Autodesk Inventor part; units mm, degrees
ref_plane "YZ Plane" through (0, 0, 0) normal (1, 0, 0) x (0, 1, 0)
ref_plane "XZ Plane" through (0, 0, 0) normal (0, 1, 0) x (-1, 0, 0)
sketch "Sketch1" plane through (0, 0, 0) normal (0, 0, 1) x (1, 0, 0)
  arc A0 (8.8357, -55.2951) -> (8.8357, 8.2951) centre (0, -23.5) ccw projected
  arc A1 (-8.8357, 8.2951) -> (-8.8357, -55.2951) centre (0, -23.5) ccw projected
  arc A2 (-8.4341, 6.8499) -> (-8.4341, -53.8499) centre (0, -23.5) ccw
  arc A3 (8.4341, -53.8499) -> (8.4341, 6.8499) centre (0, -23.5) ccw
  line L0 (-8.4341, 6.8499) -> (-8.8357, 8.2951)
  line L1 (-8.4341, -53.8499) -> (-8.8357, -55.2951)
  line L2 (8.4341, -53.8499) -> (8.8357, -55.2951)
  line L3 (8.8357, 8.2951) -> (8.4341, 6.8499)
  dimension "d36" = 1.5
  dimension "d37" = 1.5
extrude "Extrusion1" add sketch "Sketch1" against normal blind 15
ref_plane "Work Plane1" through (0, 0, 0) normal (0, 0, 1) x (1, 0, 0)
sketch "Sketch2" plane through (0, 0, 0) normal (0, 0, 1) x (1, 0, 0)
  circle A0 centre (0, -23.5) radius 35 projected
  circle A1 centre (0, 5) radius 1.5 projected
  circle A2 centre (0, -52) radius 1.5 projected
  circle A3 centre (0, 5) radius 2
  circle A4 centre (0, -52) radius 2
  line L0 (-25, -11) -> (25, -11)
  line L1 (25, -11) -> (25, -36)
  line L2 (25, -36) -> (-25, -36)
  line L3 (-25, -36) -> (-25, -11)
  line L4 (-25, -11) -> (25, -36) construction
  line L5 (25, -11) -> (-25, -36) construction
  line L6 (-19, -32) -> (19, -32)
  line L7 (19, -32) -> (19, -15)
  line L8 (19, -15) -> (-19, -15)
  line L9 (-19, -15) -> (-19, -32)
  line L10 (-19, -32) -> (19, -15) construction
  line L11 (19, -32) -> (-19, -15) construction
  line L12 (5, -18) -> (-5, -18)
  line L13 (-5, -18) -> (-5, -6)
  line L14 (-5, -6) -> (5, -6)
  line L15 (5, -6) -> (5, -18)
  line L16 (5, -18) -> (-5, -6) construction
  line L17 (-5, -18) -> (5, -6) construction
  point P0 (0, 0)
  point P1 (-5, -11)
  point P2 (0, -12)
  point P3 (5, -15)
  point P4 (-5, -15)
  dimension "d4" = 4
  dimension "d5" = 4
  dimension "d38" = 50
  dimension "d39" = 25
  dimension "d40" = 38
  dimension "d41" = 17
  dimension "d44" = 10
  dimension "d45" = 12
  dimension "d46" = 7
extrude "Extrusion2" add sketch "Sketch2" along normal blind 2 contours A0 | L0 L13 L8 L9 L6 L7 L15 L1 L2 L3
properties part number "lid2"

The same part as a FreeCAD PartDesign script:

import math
import FreeCAD as App
import Part
import Sketcher
Q = App.Units.Quantity

doc = App.newDocument("Part")
body = doc.addObject("PartDesign::Body", "Body")
body.AllowCompound = True

sketch1 = body.newObject("Sketcher::SketchObject", "Sketch")
sketch1.AttachmentSupport = (doc.getObject("XY_Plane"), [""])
sketch1.MapMode = "FlatFace"
sketch1.addGeometry([
    Part.LineSegment(App.Vector(8.4341, -53.8499, 0), App.Vector(8.8357, -55.2951, 0)),
    Part.ArcOfCircle(Part.Circle(App.Vector(0, -23.5, 0), App.Vector(0, 0, 1), 32.999969), math.radians(-74.469653), math.radians(74.469653)),
    Part.LineSegment(App.Vector(8.8357, 8.2951, 0), App.Vector(8.4341, 6.8499, 0)),
    Part.ArcOfCircle(Part.Circle(App.Vector(0, -23.5, 0), App.Vector(0, 0, 1), 31.500008), math.radians(-74.469628), math.radians(74.469628)),
    Part.LineSegment(App.Vector(-8.4341, 6.8499, 0), App.Vector(-8.8357, 8.2951, 0)),
    Part.ArcOfCircle(Part.Circle(App.Vector(0, -23.5, 0), App.Vector(0, 0, 1), 32.999969), math.radians(105.530347), math.radians(254.469653)),
    Part.LineSegment(App.Vector(-8.8357, -55.2951, 0), App.Vector(-8.4341, -53.8499, 0)),
    Part.ArcOfCircle(Part.Circle(App.Vector(0, -23.5, 0), App.Vector(0, 0, 1), 31.500008), math.radians(105.530372), math.radians(254.469628)),
], False)
sketch1.addConstraint([
    Sketcher.Constraint("Coincident", 0, 2, 1, 1),
    Sketcher.Constraint("Coincident", 1, 2, 2, 1),
    Sketcher.Constraint("Coincident", 2, 2, 3, 2),
    Sketcher.Constraint("Coincident", 3, 1, 0, 1),
    Sketcher.Constraint("Coincident", 4, 2, 5, 1),
    Sketcher.Constraint("Coincident", 5, 2, 6, 1),
    Sketcher.Constraint("Coincident", 6, 2, 7, 2),
    Sketcher.Constraint("Coincident", 7, 1, 4, 1),
    Sketcher.Constraint("Coincident", 3, 3, 1, 3),
    Sketcher.Constraint("Coincident", 5, 3, 1, 3),
    Sketcher.Constraint("Coincident", 7, 3, 1, 3),
    Sketcher.Constraint("Equal", 1, 5),
    Sketcher.Constraint("Equal", 3, 7),
    Sketcher.Constraint("Symmetric", 1, 2, 4, 2, -2),
    Sketcher.Constraint("Parallel", 0, 4),
    Sketcher.Constraint("Parallel", 2, 6),
    Sketcher.Constraint("Horizontal", 0, 2, 5, 2),
    Sketcher.Constraint("Horizontal", 3, 1, 6, 2),
    Sketcher.Constraint("Vertical", 0, 2, 1, 2),
    Sketcher.Constraint("Radius", 1, Q("33 mm")),
    Sketcher.Constraint("Distance", 0, Q("1.5 mm")),
    Sketcher.Constraint("DistanceY", 1, 3, -1, 1, Q("23.5 mm")),
    Sketcher.Constraint("Angle", 0, Q("-74.4702 deg")),
    Sketcher.Constraint("DistanceY", -1, 1, 2, 2, Q("6.85 mm")),
])
pad1 = body.newObject("PartDesign::Pad", "Pad")
pad1.Profile = sketch1
pad1.Length = 15
pad1.Reversed = True

sketch2 = body.newObject("Sketcher::SketchObject", "Sketch001")
sketch2.AttachmentSupport = (doc.getObject("XY_Plane"), [""])
sketch2.MapMode = "FlatFace"
sketch2.addGeometry([
    Part.Circle(App.Vector(0, -23.5, 0), App.Vector(0, 0, 1), 35),
    Part.Circle(App.Vector(0, -52, 0), App.Vector(0, 0, 1), 2),
    Part.LineSegment(App.Vector(5, -6, 0), App.Vector(5, -15, 0)),
    Part.LineSegment(App.Vector(5, -15, 0), App.Vector(19, -15, 0)),
    Part.LineSegment(App.Vector(19, -15, 0), App.Vector(19, -32, 0)),
    Part.LineSegment(App.Vector(19, -32, 0), App.Vector(-19, -32, 0)),
    Part.LineSegment(App.Vector(-19, -32, 0), App.Vector(-19, -15, 0)),
    Part.LineSegment(App.Vector(-19, -15, 0), App.Vector(-5, -15, 0)),
    Part.LineSegment(App.Vector(-5, -15, 0), App.Vector(-5, -6, 0)),
    Part.LineSegment(App.Vector(-5, -6, 0), App.Vector(5, -6, 0)),
    Part.Circle(App.Vector(0, 5, 0), App.Vector(0, 0, 1), 2),
], False)
sketch2.addConstraint([
    Sketcher.Constraint("Coincident", 2, 2, 3, 1),
    Sketcher.Constraint("Coincident", 3, 2, 4, 1),
    Sketcher.Constraint("Coincident", 4, 2, 5, 1),
    Sketcher.Constraint("Coincident", 5, 2, 6, 1),
    Sketcher.Constraint("Coincident", 6, 2, 7, 1),
    Sketcher.Constraint("Coincident", 7, 2, 8, 1),
    Sketcher.Constraint("Coincident", 8, 2, 9, 1),
    Sketcher.Constraint("Coincident", 9, 2, 2, 1),
    Sketcher.Constraint("Vertical", 2),
    Sketcher.Constraint("Horizontal", 3),
    Sketcher.Constraint("Vertical", 4),
    Sketcher.Constraint("Horizontal", 5),
    Sketcher.Constraint("Vertical", 6),
    Sketcher.Constraint("Horizontal", 7),
    Sketcher.Constraint("Vertical", 8),
    Sketcher.Constraint("Horizontal", 9),
    Sketcher.Constraint("Equal", 1, 10),
    Sketcher.Constraint("Symmetric", 3, 2, 6, 2, -2),
    Sketcher.Constraint("PointOnObject", 0, 3, -2),
    Sketcher.Constraint("PointOnObject", 1, 3, -2),
    Sketcher.Constraint("PointOnObject", 10, 3, -2),
    Sketcher.Constraint("Equal", 3, 7),
    Sketcher.Constraint("Diameter", 1, Q("4 mm")),
    Sketcher.Constraint("DistanceX", 5, 2, 5, 1, Q("38 mm")),
    Sketcher.Constraint("DistanceX", 9, 1, 9, 2, Q("10 mm")),
    Sketcher.Constraint("DistanceY", 4, 2, 4, 1, Q("17 mm")),
    Sketcher.Constraint("Diameter", 0, Q("70 mm")),
    Sketcher.Constraint("DistanceY", 2, 2, 2, 1, Q("9 mm")),
    Sketcher.Constraint("DistanceY", 1, 3, -1, 1, Q("52 mm")),
    Sketcher.Constraint("DistanceY", -1, 1, 10, 3, Q("5 mm")),
    Sketcher.Constraint("DistanceY", 2, 2, -1, 1, Q("15 mm")),
    Sketcher.Constraint("DistanceY", 0, 3, -1, 1, Q("23.5 mm")),
])
pad2 = body.newObject("PartDesign::Pad", "Pad001")
pad2.Profile = sketch2
pad2.Length = 2

doc.recompute()
